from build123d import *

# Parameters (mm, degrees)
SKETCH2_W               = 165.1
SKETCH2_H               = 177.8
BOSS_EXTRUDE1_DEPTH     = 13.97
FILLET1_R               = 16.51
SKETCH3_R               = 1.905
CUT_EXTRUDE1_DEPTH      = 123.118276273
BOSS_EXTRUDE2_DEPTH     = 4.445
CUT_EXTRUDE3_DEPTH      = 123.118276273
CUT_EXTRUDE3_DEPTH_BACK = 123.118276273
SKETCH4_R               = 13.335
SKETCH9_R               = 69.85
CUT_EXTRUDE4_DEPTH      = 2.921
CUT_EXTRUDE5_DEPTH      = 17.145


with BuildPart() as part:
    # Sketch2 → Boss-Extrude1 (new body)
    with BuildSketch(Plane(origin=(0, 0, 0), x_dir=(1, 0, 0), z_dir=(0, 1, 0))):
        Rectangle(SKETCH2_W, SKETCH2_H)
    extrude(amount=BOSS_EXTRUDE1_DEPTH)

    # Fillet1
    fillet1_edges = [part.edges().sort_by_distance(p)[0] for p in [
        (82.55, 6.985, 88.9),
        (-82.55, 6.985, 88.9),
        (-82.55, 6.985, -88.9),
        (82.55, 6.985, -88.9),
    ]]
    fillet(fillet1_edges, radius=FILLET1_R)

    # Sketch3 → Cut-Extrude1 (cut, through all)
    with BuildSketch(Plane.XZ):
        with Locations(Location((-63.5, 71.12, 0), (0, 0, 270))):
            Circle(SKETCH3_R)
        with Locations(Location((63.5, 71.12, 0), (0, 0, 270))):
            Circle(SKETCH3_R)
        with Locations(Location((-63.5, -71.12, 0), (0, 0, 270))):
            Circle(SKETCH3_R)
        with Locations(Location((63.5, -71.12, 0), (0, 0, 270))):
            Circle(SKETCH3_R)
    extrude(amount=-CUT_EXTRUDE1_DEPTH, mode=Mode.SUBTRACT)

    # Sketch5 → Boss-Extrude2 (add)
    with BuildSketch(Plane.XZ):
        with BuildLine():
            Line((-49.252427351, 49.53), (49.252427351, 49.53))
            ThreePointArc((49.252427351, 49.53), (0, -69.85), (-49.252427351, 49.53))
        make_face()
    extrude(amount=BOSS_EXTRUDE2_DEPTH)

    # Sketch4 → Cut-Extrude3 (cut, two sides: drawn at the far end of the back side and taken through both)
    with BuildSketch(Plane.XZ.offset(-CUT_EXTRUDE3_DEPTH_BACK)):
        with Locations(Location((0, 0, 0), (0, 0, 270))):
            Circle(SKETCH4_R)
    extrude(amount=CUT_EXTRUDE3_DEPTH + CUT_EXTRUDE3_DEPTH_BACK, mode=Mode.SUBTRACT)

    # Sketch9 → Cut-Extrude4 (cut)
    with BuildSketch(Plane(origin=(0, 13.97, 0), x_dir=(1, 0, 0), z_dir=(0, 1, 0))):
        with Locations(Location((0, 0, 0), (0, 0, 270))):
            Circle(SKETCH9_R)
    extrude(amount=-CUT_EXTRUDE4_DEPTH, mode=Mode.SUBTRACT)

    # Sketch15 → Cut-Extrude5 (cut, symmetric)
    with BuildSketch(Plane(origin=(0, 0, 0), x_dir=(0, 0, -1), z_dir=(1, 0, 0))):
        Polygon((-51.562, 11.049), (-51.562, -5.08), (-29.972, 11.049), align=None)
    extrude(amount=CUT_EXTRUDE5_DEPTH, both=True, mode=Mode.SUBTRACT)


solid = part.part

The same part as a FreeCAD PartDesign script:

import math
import FreeCAD as App
import Part
import Sketcher

V = App.Vector
Q = App.Units.Quantity


def edges_at(feature, points):
    """Names of the edges that pass closest to the given points."""
    edges = feature.Shape.Edges
    near = lambda p: min(range(len(edges)), key=lambda i: edges[i].distToShape(Part.Vertex(*p))[0])
    return sorted({f"Edge{near(p) + 1}" for p in points})

doc = App.newDocument("Part")
body = doc.addObject("PartDesign::Body", "Body")

# Sketch on XZ plane
sketch1 = body.newObject("Sketcher::SketchObject", "Sketch")
sketch1.AttachmentSupport = (doc.getObject("XZ_Plane"), [""])
sketch1.MapMode = "FlatFace"
sketch1.addGeometry([
    Part.LineSegment(V(-82.55, -88.9, 0), V(-82.55, 88.9, 0)),
    Part.LineSegment(V(-82.55, 88.9, 0), V(82.55, 88.9, 0)),
    Part.LineSegment(V(82.55, 88.9, 0), V(82.55, -88.9, 0)),
    Part.LineSegment(V(82.55, -88.9, 0), V(-82.55, -88.9, 0)),
], False)
sketch1.addConstraint([
    Sketcher.Constraint("Coincident", 0, 2, 1, 1),
    Sketcher.Constraint("Coincident", 1, 2, 2, 1),
    Sketcher.Constraint("Coincident", 2, 2, 3, 1),
    Sketcher.Constraint("Coincident", 3, 2, 0, 1),
    Sketcher.Constraint("Vertical", 0),
    Sketcher.Constraint("Horizontal", 1),
    Sketcher.Constraint("Vertical", 2),
    Sketcher.Constraint("Horizontal", 3),
    Sketcher.Constraint("Symmetric", 0, 2, 2, 2, -1, 1),
    Sketcher.Constraint("DistanceY", 0, 1, 0, 2, Q("7 in")),
    Sketcher.Constraint("DistanceX", 1, 1, 1, 2, Q("6.5 in")),
])
pad1 = body.newObject("PartDesign::Pad", "Pad")
pad1.Profile = sketch1
pad1.Length = Q("0.55 in")
pad1.Reversed = True
doc.recompute()

fillet = body.newObject("PartDesign::Fillet", "Fillet")
fillet.Base = (pad1, edges_at(pad1, [
    (82.55, 6.985, 88.9),
    (-82.55, 6.985, 88.9),
    (-82.55, 6.985, -88.9),
    (82.55, 6.985, -88.9),
]))
fillet.Radius = Q("0.65 in")

# Sketch on XZ plane
sketch2 = body.newObject("Sketcher::SketchObject", "Sketch001")
sketch2.AttachmentSupport = (doc.getObject("XZ_Plane"), [""])
sketch2.MapMode = "FlatFace"
sketch2.addGeometry([
    Part.Circle(V(-63.5, 71.12, 0), V(0, 0, 1), 1.905),
    Part.Circle(V(63.5, 71.12, 0), V(0, 0, 1), 1.905),
    Part.Circle(V(-63.5, -71.12, 0), V(0, 0, 1), 1.905),
    Part.Circle(V(63.5, -71.12, 0), V(0, 0, 1), 1.905),
], False)
sketch2.addConstraint([
    Sketcher.Constraint("Equal", 0, 1),
    Sketcher.Constraint("Equal", 1, 2),
    Sketcher.Constraint("Equal", 2, 3),
    Sketcher.Constraint("Symmetric", 1, 3, 2, 3, -1, 1),
    Sketcher.Constraint("Symmetric", 0, 3, 3, 3, -1, 1),
    Sketcher.Constraint("Symmetric", 0, 3, 1, 3, -2),
    Sketcher.Constraint("Diameter", 0, Q("0.15 in")),
    Sketcher.Constraint("DistanceX", 0, 3, 1, 3, Q("5 in")),
    Sketcher.Constraint("DistanceY", -1, 1, 0, 3, Q("2.8 in")),
])
pocket1 = body.newObject("PartDesign::Pocket", "Pocket")
pocket1.Profile = sketch2
pocket1.Type = "ThroughAll"

# Sketch on XZ plane
sketch3 = body.newObject("Sketcher::SketchObject", "Sketch002")
sketch3.AttachmentSupport = (doc.getObject("XZ_Plane"), [""])
sketch3.MapMode = "FlatFace"
sketch3.addGeometry([
    Part.LineSegment(V(49.252427, 49.53, 0), V(-49.252427, 49.53, 0)),
    Part.ArcOfCircle(Part.Circle(V(0, 0, 0), V(0, 0, 1), 69.85), math.radians(134.839003), math.radians(405.160997)),
], False)
sketch3.addConstraint([
    Sketcher.Constraint("Coincident", 0, 1, 1, 2),
    Sketcher.Constraint("Coincident", 1, 1, 0, 2),
    Sketcher.Constraint("Horizontal", 0),
    Sketcher.Constraint("Coincident", 1, 3, -1, 1),
    Sketcher.Constraint("Radius", 1, Q("2.75 in")),
    Sketcher.Constraint("DistanceY", -1, 1, 0, 1, Q("1.95 in")),
])
pad2 = body.newObject("PartDesign::Pad", "Pad001")
pad2.Profile = sketch3
pad2.Length = Q("0.175 in")

# Sketch on XZ plane
sketch4 = body.newObject("Sketcher::SketchObject", "Sketch003")
sketch4.AttachmentSupport = (doc.getObject("XZ_Plane"), [""])
sketch4.MapMode = "FlatFace"
sketch4.addGeometry(Part.Circle(V(0, 0, 0), V(0, 0, 1), 13.335), False)
sketch4.addConstraint([
    Sketcher.Constraint("Coincident", 0, 3, -1, 1),
    Sketcher.Constraint("Diameter", 0, Q("1.05 in")),
])
pocket2 = body.newObject("PartDesign::Pocket", "Pocket001")
pocket2.Profile = sketch4
pocket2.Type = "ThroughAll"
pocket2.Midplane = True

# Sketch on XZ plane
sketch5 = body.newObject("Sketcher::SketchObject", "Sketch004")
sketch5.AttachmentSupport = (doc.getObject("XZ_Plane"), [""])
sketch5.MapMode = "FlatFace"
sketch5.AttachmentOffset = App.Placement(V(0, 0, -0.55 * 25.4), App.Rotation())
sketch5.addGeometry(Part.Circle(V(0, 0, 0), V(0, 0, 1), 69.85), False)
sketch5.addConstraint([
    Sketcher.Constraint("Coincident", 0, 3, -1, 1),
    Sketcher.Constraint("Diameter", 0, Q("5.5 in")),
])
pocket3 = body.newObject("PartDesign::Pocket", "Pocket002")
pocket3.Profile = sketch5
pocket3.Length = Q("0.115 in")
pocket3.Reversed = True

# Sketch on YZ plane
sketch6 = body.newObject("Sketcher::SketchObject", "Sketch005")
sketch6.AttachmentSupport = (doc.getObject("YZ_Plane"), [""])
sketch6.MapMode = "FlatFace"
sketch6.addGeometry([
    Part.LineSegment(V(11.049, 51.562, 0), V(-5.08, 51.562, 0)),
    Part.LineSegment(V(-5.08, 51.562, 0), V(11.049, 29.972, 0)),
    Part.LineSegment(V(11.049, 29.972, 0), V(11.049, 51.562, 0)),
], False)
sketch6.addConstraint([
    Sketcher.Constraint("Coincident", 0, 2, 1, 1),
    Sketcher.Constraint("Coincident", 1, 2, 2, 1),
    Sketcher.Constraint("Coincident", 2, 2, 0, 1),
    Sketcher.Constraint("Horizontal", 0),
    Sketcher.Constraint("Vertical", 2),
    Sketcher.Constraint("DistanceY", 2, 1, 2, 2, Q("0.85 in")),
    Sketcher.Constraint("DistanceX", 0, 2, -1, 1, Q("0.2 in")),
    Sketcher.Constraint("DistanceX", 0, 2, 0, 1, Q("0.635 in")),
    Sketcher.Constraint("DistanceY", -1, 1, 0, 2, Q("2.03 in")),
])
pocket4 = body.newObject("PartDesign::Pocket", "Pocket003")
pocket4.Profile = sketch6
pocket4.Length = Q("1.35 in")
pocket4.Midplane = True

doc.recompute()
